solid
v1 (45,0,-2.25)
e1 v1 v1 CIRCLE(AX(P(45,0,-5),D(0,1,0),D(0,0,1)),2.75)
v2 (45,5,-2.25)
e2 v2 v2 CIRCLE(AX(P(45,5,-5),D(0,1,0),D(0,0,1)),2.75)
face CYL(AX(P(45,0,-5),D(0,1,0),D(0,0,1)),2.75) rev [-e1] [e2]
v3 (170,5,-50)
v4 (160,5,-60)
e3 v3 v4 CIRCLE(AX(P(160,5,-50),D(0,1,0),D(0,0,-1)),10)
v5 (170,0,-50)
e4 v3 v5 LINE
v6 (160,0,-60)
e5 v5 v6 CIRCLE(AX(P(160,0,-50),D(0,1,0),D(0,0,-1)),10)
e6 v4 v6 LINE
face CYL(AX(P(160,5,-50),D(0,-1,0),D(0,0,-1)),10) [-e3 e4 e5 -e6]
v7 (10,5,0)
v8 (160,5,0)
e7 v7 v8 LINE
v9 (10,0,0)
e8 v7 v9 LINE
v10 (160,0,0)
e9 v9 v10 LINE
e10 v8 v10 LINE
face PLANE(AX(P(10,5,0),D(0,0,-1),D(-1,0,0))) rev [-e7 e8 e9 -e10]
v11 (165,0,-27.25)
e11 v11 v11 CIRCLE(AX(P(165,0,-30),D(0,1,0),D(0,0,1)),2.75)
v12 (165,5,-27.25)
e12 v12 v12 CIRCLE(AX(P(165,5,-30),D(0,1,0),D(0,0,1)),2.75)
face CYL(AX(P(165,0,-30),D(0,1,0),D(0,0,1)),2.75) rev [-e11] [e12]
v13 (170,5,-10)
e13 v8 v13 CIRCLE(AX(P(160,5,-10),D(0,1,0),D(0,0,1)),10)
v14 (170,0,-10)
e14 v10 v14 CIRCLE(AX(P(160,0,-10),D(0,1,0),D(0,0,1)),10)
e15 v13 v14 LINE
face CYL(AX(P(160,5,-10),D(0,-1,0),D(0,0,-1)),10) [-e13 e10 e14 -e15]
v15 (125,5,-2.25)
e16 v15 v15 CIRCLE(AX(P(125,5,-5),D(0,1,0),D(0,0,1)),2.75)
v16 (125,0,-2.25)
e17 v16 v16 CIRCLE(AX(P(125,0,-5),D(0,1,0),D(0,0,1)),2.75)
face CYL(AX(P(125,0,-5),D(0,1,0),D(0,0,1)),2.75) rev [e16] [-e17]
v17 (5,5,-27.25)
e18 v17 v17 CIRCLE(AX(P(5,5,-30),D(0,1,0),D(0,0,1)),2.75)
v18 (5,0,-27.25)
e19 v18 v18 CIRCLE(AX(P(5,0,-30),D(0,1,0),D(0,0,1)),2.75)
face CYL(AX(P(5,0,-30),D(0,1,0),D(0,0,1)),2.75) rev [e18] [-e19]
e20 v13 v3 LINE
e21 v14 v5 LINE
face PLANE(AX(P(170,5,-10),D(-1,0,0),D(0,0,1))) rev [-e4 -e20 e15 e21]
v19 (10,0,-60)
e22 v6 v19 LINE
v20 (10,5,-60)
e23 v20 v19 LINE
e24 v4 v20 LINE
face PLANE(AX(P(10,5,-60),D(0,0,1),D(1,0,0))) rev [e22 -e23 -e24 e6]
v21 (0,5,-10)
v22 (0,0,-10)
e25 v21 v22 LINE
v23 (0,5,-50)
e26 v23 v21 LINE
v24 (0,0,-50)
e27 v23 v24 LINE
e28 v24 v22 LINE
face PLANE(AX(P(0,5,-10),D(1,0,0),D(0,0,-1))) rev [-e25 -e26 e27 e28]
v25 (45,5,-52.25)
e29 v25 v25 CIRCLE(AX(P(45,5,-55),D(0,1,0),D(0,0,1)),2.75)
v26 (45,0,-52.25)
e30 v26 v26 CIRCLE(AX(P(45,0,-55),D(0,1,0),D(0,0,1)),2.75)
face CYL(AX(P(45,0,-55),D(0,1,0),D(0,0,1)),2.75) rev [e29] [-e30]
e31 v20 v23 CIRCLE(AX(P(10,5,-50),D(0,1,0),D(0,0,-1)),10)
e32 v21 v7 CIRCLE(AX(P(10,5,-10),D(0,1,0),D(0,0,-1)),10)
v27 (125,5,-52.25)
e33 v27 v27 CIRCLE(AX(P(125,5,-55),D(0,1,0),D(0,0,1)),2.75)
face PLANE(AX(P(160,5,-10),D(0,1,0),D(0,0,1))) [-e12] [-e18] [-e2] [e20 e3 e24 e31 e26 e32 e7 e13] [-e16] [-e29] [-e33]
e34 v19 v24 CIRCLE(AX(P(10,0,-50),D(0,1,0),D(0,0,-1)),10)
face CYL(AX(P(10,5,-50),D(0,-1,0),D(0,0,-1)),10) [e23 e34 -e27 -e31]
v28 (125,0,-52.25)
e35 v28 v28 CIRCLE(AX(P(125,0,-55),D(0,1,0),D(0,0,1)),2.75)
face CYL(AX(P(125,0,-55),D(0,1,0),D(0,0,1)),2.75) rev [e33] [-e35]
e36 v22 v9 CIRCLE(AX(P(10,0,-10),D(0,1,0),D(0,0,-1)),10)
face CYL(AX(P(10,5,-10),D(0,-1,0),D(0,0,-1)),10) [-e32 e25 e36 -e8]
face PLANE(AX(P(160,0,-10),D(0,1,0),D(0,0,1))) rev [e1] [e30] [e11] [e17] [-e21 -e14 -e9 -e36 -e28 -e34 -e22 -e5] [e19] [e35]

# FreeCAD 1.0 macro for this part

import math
import FreeCAD as App
import Part
import Sketcher

V = App.Vector
Q = App.Units.Quantity

doc = App.newDocument("Part")
body = doc.addObject("PartDesign::Body", "Body")

# Sketch on XZ plane
sketch1 = body.newObject("Sketcher::SketchObject", "Sketch")
sketch1.AttachmentSupport = (doc.getObject("XZ_Plane"), [""])
sketch1.MapMode = "FlatFace"
sketch1.addGeometry([
    Part.LineSegment(V(10, 0, 0), V(160, 0, 0)),  # 0
    Part.ArcOfCircle(Part.Circle(V(160, -10, 0), V(0, 0, 1), 10), math.radians(0), math.radians(90)),  # 1
    Part.LineSegment(V(170, -10, 0), V(170, -50, 0)),  # 2
    Part.ArcOfCircle(Part.Circle(V(160, -50, 0), V(0, 0, 1), 10), math.radians(-90), math.radians(0)),  # 3
    Part.LineSegment(V(160, -60, 0), V(10, -60, 0)),  # 4
    Part.ArcOfCircle(Part.Circle(V(10, -50, 0), V(0, 0, 1), 10), math.radians(180), math.radians(270)),  # 5
    Part.LineSegment(V(0, -50, 0), V(0, -10, 0)),  # 6
    Part.ArcOfCircle(Part.Circle(V(10, -10, 0), V(0, 0, 1), 10), math.radians(90), math.radians(180)),  # 7
], False)
sketch1.addConstraint([
    Sketcher.Constraint("Tangent", 0, 2, 1, 2),
    Sketcher.Constraint("Tangent", 1, 1, 2, 1),
    Sketcher.Constraint("Tangent", 2, 2, 3, 2),
    Sketcher.Constraint("Tangent", 3, 1, 4, 1),
    Sketcher.Constraint("Tangent", 4, 2, 5, 2),
    Sketcher.Constraint("Tangent", 5, 1, 6, 1),
    Sketcher.Constraint("Tangent", 6, 2, 7, 2),
    Sketcher.Constraint("Tangent", 7, 1, 0, 1),
    Sketcher.Constraint("Horizontal", 0),
    Sketcher.Constraint("Vertical", 2),
    Sketcher.Constraint("Horizontal", 4),
    Sketcher.Constraint("Vertical", 6),
    Sketcher.Constraint("Equal", 1, 3),
    Sketcher.Constraint("Equal", 3, 5),
    Sketcher.Constraint("Equal", 5, 7),
    Sketcher.Constraint("PointOnObject", 0, 2, -1),
    Sketcher.Constraint("PointOnObject", 5, 1, -2),
    Sketcher.Constraint("Radius", 1, Q("10 mm")),
    Sketcher.Constraint("DistanceX", 0, 1, 0, 2, Q("150 mm")),
    Sketcher.Constraint("DistanceY", 2, 2, 2, 1, Q("40 mm")),
])
pad1 = body.newObject("PartDesign::Pad", "Pad")
pad1.Profile = sketch1
pad1.Length = 5
pad1.Reversed = True

# Sketch on XZ plane
sketch2 = body.newObject("Sketcher::SketchObject", "Sketch001")
sketch2.AttachmentSupport = (doc.getObject("XZ_Plane"), [""])
sketch2.MapMode = "FlatFace"
sketch2.AttachmentOffset = App.Placement(V(0, 0, -5), App.Rotation())
sketch2.addGeometry([
    Part.Circle(V(5, -30, 0), V(0, 0, 1), 2.8),  # 0
    Part.Circle(V(45, -55, 0), V(0, 0, 1), 2.8),  # 1
    Part.Circle(V(125, -55, 0), V(0, 0, 1), 2.8),  # 2
    Part.Circle(V(165, -30, 0), V(0, 0, 1), 2.8),  # 3
    Part.Circle(V(125, -5, 0), V(0, 0, 1), 2.8),  # 4
    Part.Circle(V(45, -5, 0), V(0, 0, 1), 2.8),  # 5
], False)
sketch2.addConstraint([
    Sketcher.Constraint("Equal", 0, 1),
    Sketcher.Constraint("Equal", 1, 2),
    Sketcher.Constraint("Equal", 2, 3),
    Sketcher.Constraint("Equal", 3, 4),
    Sketcher.Constraint("Equal", 4, 5),
    Sketcher.Constraint("Horizontal", 1, 3, 2, 3),
    Sketcher.Constraint("Horizontal", 0, 3, 3, 3),
    Sketcher.Constraint("Horizontal", 4, 3, 5, 3),
    Sketcher.Constraint("Vertical", 2, 3, 4, 3),
    Sketcher.Constraint("Vertical", 1, 3, 5, 3),
    Sketcher.Constraint("Diameter", 0, Q("5.5 mm")),
    Sketcher.Constraint("DistanceX", -1, 1, 0, 3, Q("5 mm")),
    Sketcher.Constraint("DistanceY", 0, 3, -1, 1, Q("30 mm")),
    Sketcher.Constraint("DistanceX", -1, 1, 1, 3, Q("45 mm")),
    Sketcher.Constraint("DistanceY", 1, 3, -1, 1, Q("55 mm")),
    Sketcher.Constraint("DistanceX", -1, 1, 2, 3, Q("125 mm")),
    Sketcher.Constraint("DistanceX", -1, 1, 3, 3, Q("165 mm")),
    Sketcher.Constraint("DistanceY", 4, 3, -1, 1, Q("5 mm")),
])
pocket1 = body.newObject("PartDesign::Pocket", "Pocket")
pocket1.Profile = sketch2
pocket1.Length = 5
pocket1.Reversed = True

doc.recompute()
